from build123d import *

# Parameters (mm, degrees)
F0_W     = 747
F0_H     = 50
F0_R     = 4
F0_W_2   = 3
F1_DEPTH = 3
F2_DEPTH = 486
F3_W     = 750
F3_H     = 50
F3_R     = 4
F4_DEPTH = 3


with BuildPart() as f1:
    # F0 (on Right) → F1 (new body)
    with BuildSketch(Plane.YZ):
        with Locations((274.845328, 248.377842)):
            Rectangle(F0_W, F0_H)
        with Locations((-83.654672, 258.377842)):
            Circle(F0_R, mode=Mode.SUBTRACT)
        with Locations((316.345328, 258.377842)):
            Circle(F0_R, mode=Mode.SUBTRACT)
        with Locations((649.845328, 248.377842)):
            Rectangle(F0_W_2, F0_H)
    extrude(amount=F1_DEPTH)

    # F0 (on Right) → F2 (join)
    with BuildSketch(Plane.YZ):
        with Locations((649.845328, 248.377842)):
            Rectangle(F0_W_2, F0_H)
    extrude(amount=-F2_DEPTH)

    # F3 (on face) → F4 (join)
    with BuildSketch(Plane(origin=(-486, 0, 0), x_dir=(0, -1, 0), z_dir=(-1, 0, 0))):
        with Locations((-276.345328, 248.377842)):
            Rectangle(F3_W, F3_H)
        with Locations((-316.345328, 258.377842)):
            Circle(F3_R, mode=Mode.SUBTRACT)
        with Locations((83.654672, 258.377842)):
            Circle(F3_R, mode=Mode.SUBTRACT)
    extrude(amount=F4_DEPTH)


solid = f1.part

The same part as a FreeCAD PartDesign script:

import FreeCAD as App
import Part
import Sketcher
from FreeCAD import Vector


def add_polygon(sketch, points):
    """Adds a closed chain of lines whose ends are joined by coincident constraints."""
    first, n = sketch.GeometryCount, len(points)
    for a, b in zip(points, points[1:] + points[:1]):
        sketch.addGeometry(Part.LineSegment(App.Vector(*a, 0), App.Vector(*b, 0)), False)
    for i in range(n):
        sketch.addConstraint(Sketcher.Constraint("Coincident", first + i, 2, first + (i + 1) % n, 1))

doc = App.newDocument("Part")
body = doc.addObject("PartDesign::Body", "Body")

# Sketch on YZ plane
sketch1 = body.newObject("Sketcher::SketchObject", "Sketch")
sketch1.AttachmentSupport = (doc.getObject("YZ_Plane"), [""])
sketch1.MapMode = "FlatFace"
add_polygon(sketch1, [(-98.7, 273.4), (-98.7, 223.4), (651.3, 223.4), (651.3, 273.4)])  # lines 0-3
sketch1.addGeometry(Part.Circle(Vector(-83.7, 258.4, 0), Vector(0, 0, 1), 4), False)  # 4
sketch1.addGeometry(Part.Circle(Vector(316.3, 258.4, 0), Vector(0, 0, 1), 4), False)  # 5
sketch1.addConstraint(Sketcher.Constraint("Vertical", 0))
sketch1.addConstraint(Sketcher.Constraint("Horizontal", 1))
sketch1.addConstraint(Sketcher.Constraint("Vertical", 2))
sketch1.addConstraint(Sketcher.Constraint("Horizontal", 3))
sketch1.addConstraint(Sketcher.Constraint("Equal", 4, 5))
sketch1.addConstraint(Sketcher.Constraint("Horizontal", 4, 3, 5, 3))
sketch1.addConstraint(Sketcher.Constraint("Diameter", 4, 8.0))
sketch1.addConstraint(Sketcher.Constraint("DistanceX", 1, 1, 1, 2, 750.0))
sketch1.addConstraint(Sketcher.Constraint("DistanceY", 0, 2, 0, 1, 50.0))
sketch1.addConstraint(Sketcher.Constraint("DistanceX", 4, 3, 5, 3, 400.0))
sketch1.addConstraint(Sketcher.Constraint("DistanceX", 0, 2, 4, 3, 15.0))
sketch1.addConstraint(Sketcher.Constraint("DistanceY", 0, 2, 4, 3, 35.0))
sketch1.addConstraint(Sketcher.Constraint("DistanceY", -1, 1, 4, 3, 258.377842))
sketch1.addConstraint(Sketcher.Constraint("DistanceX", -1, 1, 5, 3, 316.345328))
pad1 = body.newObject("PartDesign::Pad", "Pad")
pad1.Profile = sketch1
pad1.Length = 3

# Sketch on YZ plane
sketch2 = body.newObject("Sketcher::SketchObject", "Sketch001")
sketch2.AttachmentSupport = (doc.getObject("YZ_Plane"), [""])
sketch2.MapMode = "FlatFace"
add_polygon(sketch2, [(648.3, 273.4), (648.3, 223.4), (651.3, 223.4), (651.3, 273.4)])  # lines 0-3
sketch2.addConstraint(Sketcher.Constraint("Vertical", 0))
sketch2.addConstraint(Sketcher.Constraint("Horizontal", 1))
sketch2.addConstraint(Sketcher.Constraint("Vertical", 2))
sketch2.addConstraint(Sketcher.Constraint("Horizontal", 3))
sketch2.addConstraint(Sketcher.Constraint("DistanceX", 1, 1, 1, 2, 3.0))
sketch2.addConstraint(Sketcher.Constraint("DistanceY", 0, 2, 0, 1, 50.0))
sketch2.addConstraint(Sketcher.Constraint("DistanceX", -1, 1, 0, 2, 648.345328))
sketch2.addConstraint(Sketcher.Constraint("DistanceY", -1, 1, 0, 2, 223.377842))
pad2 = body.newObject("PartDesign::Pad", "Pad001")
pad2.Profile = sketch2
pad2.Length = 486
pad2.Reversed = True

# Sketch on YZ plane
sketch3 = body.newObject("Sketcher::SketchObject", "Sketch002")
sketch3.AttachmentSupport = (doc.getObject("YZ_Plane"), [""])
sketch3.MapMode = "FlatFace"
sketch3.AttachmentOffset = App.Placement(Vector(0, 0, -486), App.Rotation())
add_polygon(sketch3, [(651.3, 273.4), (651.3, 223.4), (-98.7, 223.4), (-98.7, 273.4)])  # lines 0-3
sketch3.addGeometry(Part.Circle(Vector(316.3, 258.4, 0), Vector(0, 0, 1), 4), False)  # 4
sketch3.addGeometry(Part.Circle(Vector(-83.7, 258.4, 0), Vector(0, 0, 1), 4), False)  # 5
sketch3.addConstraint(Sketcher.Constraint("Vertical", 0))
sketch3.addConstraint(Sketcher.Constraint("Horizontal", 1))
sketch3.addConstraint(Sketcher.Constraint("Vertical", 2))
sketch3.addConstraint(Sketcher.Constraint("Horizontal", 3))
sketch3.addConstraint(Sketcher.Constraint("Equal", 4, 5))
sketch3.addConstraint(Sketcher.Constraint("Horizontal", 4, 3, 5, 3))
sketch3.addConstraint(Sketcher.Constraint("Diameter", 4, 8.0))
sketch3.addConstraint(Sketcher.Constraint("DistanceX", 1, 2, 1, 1, 750.0))
sketch3.addConstraint(Sketcher.Constraint("DistanceY", 0, 2, 0, 1, 50.0))
sketch3.addConstraint(Sketcher.Constraint("DistanceX", 5, 3, 4, 3, 400.0))
sketch3.addConstraint(Sketcher.Constraint("DistanceX", 4, 3, 0, 2, 335.0))
sketch3.addConstraint(Sketcher.Constraint("DistanceY", 0, 2, 4, 3, 35.0))
sketch3.addConstraint(Sketcher.Constraint("DistanceX", -1, 1, 4, 3, 316.345328))
sketch3.addConstraint(Sketcher.Constraint("DistanceY", -1, 1, 4, 3, 258.377842))
pad3 = body.newObject("PartDesign::Pad", "Pad002")
pad3.Profile = sketch3
pad3.Length = 3
pad3.Reversed = True

doc.recompute()
